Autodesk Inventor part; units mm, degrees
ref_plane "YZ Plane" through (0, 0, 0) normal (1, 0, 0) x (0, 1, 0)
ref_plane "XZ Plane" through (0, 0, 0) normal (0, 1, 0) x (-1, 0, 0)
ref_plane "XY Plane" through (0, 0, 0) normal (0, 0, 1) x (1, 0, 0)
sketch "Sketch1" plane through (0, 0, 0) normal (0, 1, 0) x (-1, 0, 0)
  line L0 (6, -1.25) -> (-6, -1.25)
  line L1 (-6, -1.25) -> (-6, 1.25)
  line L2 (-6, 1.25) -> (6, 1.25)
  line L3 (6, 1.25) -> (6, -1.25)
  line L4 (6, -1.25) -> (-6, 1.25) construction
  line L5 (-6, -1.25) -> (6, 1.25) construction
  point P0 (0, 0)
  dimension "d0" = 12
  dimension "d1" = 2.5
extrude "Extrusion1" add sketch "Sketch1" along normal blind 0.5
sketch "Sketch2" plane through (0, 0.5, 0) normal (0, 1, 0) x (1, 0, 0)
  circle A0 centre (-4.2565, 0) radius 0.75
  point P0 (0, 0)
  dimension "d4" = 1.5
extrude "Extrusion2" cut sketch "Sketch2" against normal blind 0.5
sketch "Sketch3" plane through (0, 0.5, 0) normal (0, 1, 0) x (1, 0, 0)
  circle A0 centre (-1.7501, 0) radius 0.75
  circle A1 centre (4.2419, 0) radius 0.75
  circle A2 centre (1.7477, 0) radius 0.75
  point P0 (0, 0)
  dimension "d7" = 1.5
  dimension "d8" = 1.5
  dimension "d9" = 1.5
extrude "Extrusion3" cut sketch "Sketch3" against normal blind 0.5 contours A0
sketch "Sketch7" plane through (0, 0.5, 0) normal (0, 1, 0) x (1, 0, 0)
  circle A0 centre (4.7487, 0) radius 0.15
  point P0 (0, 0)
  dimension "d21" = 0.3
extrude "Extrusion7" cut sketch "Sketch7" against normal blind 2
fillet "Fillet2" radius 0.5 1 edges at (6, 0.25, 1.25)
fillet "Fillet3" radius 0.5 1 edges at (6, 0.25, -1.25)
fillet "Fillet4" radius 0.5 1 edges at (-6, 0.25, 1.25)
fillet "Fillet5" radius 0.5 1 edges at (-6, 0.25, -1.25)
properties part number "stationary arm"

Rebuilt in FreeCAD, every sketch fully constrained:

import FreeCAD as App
import Part
import Sketcher

V = App.Vector
Q = App.Units.Quantity


def edges_at(feature, points):
    """Names of the edges that pass closest to the given points."""
    edges = feature.Shape.Edges
    near = lambda p: min(range(len(edges)), key=lambda i: edges[i].distToShape(Part.Vertex(*p))[0])
    return sorted({f"Edge{near(p) + 1}" for p in points})


def add_polygon(sketch, points):
    """Adds a closed chain of lines whose ends are joined by coincident constraints."""
    first, n = sketch.GeometryCount, len(points)
    for a, b in zip(points, points[1:] + points[:1]):
        sketch.addGeometry(Part.LineSegment(App.Vector(*a, 0), App.Vector(*b, 0)), False)
    for i in range(n):
        sketch.addConstraint(Sketcher.Constraint("Coincident", first + i, 2, first + (i + 1) % n, 1))

doc = App.newDocument("Part")
params = doc.addObject("Spreadsheet::Sheet", "Params")
for row, (alias, value) in enumerate([
    ("sketch1_width", "12 mm"),
    ("sketch1_height", "2.5 mm"),
    ("pad1_length", "0.5 mm"),
    ("sketch2_diameter", "1.5 mm"),
    ("pocket1_length", "0.5 mm"),
    ("sketch3_diameter", "1.5 mm"),
    ("pocket2_length", "0.5 mm"),
    ("sketch4_diameter", "0.3 mm"),
    ("pocket3_length", "2 mm"),
    ("fillet_radius", "0.5 mm"),
    ("fillet2_radius", "0.5 mm"),
    ("fillet3_radius", "0.5 mm"),
    ("fillet4_radius", "0.5 mm"),
], start=1):
    params.set(f"A{row}", alias)
    params.set(f"B{row}", "=" + value)
    params.setAlias(f"B{row}", alias)

body = doc.addObject("PartDesign::Body", "Body")

sketch1 = body.newObject("Sketcher::SketchObject", "Sketch")
sketch1.AttachmentSupport = (doc.getObject("XZ_Plane"), [""])
sketch1.MapMode = "FlatFace"
add_polygon(sketch1, [(6, -1.2), (-6, -1.2), (-6, 1.2), (6, 1.2)])
sketch1.addConstraint(Sketcher.Constraint("Horizontal", 0))
sketch1.addConstraint(Sketcher.Constraint("Vertical", 1))
sketch1.addConstraint(Sketcher.Constraint("Horizontal", 2))
sketch1.addConstraint(Sketcher.Constraint("Vertical", 3))
sketch1.addConstraint(Sketcher.Constraint("Symmetric", 0, 2, 2, 2, -1, 1))
sketch1.addConstraint(Sketcher.Constraint("DistanceX", 0, 2, 0, 1, Q("12 mm")))
sketch1.addConstraint(Sketcher.Constraint("DistanceY", 1, 1, 1, 2, Q("2.5 mm")))
sketch1.setExpression("Constraints[9]", "Params.sketch1_width")
sketch1.setExpression("Constraints[10]", "Params.sketch1_height")
pad1 = body.newObject("PartDesign::Pad", "Pad")
pad1.Profile = sketch1
pad1.setExpression("Length", "Params.pad1_length")
pad1.Reversed = True

sketch2 = body.newObject("Sketcher::SketchObject", "Sketch001")
sketch2.AttachmentSupport = (doc.getObject("XZ_Plane"), [""])
sketch2.MapMode = "FlatFace"
sketch2.AttachmentOffset = App.Placement(V(0, 0, -0.5), App.Rotation())
sketch2.addGeometry(Part.Circle(V(-4.3, 0, 0), V(0, 0, 1), 0.8), False)
sketch2.addConstraint(Sketcher.Constraint("PointOnObject", 0, 3, -1))
sketch2.addConstraint(Sketcher.Constraint("Diameter", 0, Q("1.5 mm")))
sketch2.addConstraint(Sketcher.Constraint("DistanceX", 0, 3, -1, 1, Q("4.2565 mm")))
sketch2.setExpression("Constraints[1]", "Params.sketch2_diameter")
pocket1 = body.newObject("PartDesign::Pocket", "Pocket")
pocket1.Profile = sketch2
pocket1.setExpression("Length", "Params.pocket1_length")
pocket1.Reversed = True

sketch3 = body.newObject("Sketcher::SketchObject", "Sketch002")
sketch3.AttachmentSupport = (doc.getObject("XZ_Plane"), [""])
sketch3.MapMode = "FlatFace"
sketch3.AttachmentOffset = App.Placement(V(0, 0, -0.5), App.Rotation())
sketch3.addGeometry(Part.Circle(V(-1.8, 0, 0), V(0, 0, 1), 0.8), False)
sketch3.addConstraint(Sketcher.Constraint("PointOnObject", 0, 3, -1))
sketch3.addConstraint(Sketcher.Constraint("Diameter", 0, Q("1.5 mm")))
sketch3.addConstraint(Sketcher.Constraint("DistanceX", 0, 3, -1, 1, Q("1.75 mm")))
sketch3.setExpression("Constraints[1]", "Params.sketch3_diameter")
pocket2 = body.newObject("PartDesign::Pocket", "Pocket001")
pocket2.Profile = sketch3
pocket2.setExpression("Length", "Params.pocket2_length")
pocket2.Reversed = True

sketch4 = body.newObject("Sketcher::SketchObject", "Sketch003")
sketch4.AttachmentSupport = (doc.getObject("XZ_Plane"), [""])
sketch4.MapMode = "FlatFace"
sketch4.AttachmentOffset = App.Placement(V(0, 0, -0.5), App.Rotation())
sketch4.addGeometry(Part.Circle(V(4.75, 0, 0), V(0, 0, 1), 0.15), False)
sketch4.addConstraint(Sketcher.Constraint("PointOnObject", 0, 3, -1))
sketch4.addConstraint(Sketcher.Constraint("Diameter", 0, Q("0.3 mm")))
sketch4.addConstraint(Sketcher.Constraint("DistanceX", -1, 1, 0, 3, Q("4.7487 mm")))
sketch4.setExpression("Constraints[1]", "Params.sketch4_diameter")
pocket3 = body.newObject("PartDesign::Pocket", "Pocket002")
pocket3.Profile = sketch4
pocket3.setExpression("Length", "Params.pocket3_length")
pocket3.Reversed = True
doc.recompute()

fillet = body.newObject("PartDesign::Fillet", "Fillet")
fillet.Base = (pocket3, edges_at(pocket3, [(6, 0.25, 1.25)]))
fillet.setExpression("Radius", "Params.fillet_radius")
doc.recompute()

fillet2 = body.newObject("PartDesign::Fillet", "Fillet001")
fillet2.Base = (fillet, edges_at(fillet, [(6, 0.25, -1.25)]))
fillet2.setExpression("Radius", "Params.fillet2_radius")
doc.recompute()

fillet3 = body.newObject("PartDesign::Fillet", "Fillet002")
fillet3.Base = (fillet2, edges_at(fillet2, [(-6, 0.25, 1.25)]))
fillet3.setExpression("Radius", "Params.fillet3_radius")
doc.recompute()

fillet4 = body.newObject("PartDesign::Fillet", "Fillet003")
fillet4.Base = (fillet3, edges_at(fillet3, [(-6, 0.25, -1.25)]))
fillet4.setExpression("Radius", "Params.fillet4_radius")

doc.recompute()
